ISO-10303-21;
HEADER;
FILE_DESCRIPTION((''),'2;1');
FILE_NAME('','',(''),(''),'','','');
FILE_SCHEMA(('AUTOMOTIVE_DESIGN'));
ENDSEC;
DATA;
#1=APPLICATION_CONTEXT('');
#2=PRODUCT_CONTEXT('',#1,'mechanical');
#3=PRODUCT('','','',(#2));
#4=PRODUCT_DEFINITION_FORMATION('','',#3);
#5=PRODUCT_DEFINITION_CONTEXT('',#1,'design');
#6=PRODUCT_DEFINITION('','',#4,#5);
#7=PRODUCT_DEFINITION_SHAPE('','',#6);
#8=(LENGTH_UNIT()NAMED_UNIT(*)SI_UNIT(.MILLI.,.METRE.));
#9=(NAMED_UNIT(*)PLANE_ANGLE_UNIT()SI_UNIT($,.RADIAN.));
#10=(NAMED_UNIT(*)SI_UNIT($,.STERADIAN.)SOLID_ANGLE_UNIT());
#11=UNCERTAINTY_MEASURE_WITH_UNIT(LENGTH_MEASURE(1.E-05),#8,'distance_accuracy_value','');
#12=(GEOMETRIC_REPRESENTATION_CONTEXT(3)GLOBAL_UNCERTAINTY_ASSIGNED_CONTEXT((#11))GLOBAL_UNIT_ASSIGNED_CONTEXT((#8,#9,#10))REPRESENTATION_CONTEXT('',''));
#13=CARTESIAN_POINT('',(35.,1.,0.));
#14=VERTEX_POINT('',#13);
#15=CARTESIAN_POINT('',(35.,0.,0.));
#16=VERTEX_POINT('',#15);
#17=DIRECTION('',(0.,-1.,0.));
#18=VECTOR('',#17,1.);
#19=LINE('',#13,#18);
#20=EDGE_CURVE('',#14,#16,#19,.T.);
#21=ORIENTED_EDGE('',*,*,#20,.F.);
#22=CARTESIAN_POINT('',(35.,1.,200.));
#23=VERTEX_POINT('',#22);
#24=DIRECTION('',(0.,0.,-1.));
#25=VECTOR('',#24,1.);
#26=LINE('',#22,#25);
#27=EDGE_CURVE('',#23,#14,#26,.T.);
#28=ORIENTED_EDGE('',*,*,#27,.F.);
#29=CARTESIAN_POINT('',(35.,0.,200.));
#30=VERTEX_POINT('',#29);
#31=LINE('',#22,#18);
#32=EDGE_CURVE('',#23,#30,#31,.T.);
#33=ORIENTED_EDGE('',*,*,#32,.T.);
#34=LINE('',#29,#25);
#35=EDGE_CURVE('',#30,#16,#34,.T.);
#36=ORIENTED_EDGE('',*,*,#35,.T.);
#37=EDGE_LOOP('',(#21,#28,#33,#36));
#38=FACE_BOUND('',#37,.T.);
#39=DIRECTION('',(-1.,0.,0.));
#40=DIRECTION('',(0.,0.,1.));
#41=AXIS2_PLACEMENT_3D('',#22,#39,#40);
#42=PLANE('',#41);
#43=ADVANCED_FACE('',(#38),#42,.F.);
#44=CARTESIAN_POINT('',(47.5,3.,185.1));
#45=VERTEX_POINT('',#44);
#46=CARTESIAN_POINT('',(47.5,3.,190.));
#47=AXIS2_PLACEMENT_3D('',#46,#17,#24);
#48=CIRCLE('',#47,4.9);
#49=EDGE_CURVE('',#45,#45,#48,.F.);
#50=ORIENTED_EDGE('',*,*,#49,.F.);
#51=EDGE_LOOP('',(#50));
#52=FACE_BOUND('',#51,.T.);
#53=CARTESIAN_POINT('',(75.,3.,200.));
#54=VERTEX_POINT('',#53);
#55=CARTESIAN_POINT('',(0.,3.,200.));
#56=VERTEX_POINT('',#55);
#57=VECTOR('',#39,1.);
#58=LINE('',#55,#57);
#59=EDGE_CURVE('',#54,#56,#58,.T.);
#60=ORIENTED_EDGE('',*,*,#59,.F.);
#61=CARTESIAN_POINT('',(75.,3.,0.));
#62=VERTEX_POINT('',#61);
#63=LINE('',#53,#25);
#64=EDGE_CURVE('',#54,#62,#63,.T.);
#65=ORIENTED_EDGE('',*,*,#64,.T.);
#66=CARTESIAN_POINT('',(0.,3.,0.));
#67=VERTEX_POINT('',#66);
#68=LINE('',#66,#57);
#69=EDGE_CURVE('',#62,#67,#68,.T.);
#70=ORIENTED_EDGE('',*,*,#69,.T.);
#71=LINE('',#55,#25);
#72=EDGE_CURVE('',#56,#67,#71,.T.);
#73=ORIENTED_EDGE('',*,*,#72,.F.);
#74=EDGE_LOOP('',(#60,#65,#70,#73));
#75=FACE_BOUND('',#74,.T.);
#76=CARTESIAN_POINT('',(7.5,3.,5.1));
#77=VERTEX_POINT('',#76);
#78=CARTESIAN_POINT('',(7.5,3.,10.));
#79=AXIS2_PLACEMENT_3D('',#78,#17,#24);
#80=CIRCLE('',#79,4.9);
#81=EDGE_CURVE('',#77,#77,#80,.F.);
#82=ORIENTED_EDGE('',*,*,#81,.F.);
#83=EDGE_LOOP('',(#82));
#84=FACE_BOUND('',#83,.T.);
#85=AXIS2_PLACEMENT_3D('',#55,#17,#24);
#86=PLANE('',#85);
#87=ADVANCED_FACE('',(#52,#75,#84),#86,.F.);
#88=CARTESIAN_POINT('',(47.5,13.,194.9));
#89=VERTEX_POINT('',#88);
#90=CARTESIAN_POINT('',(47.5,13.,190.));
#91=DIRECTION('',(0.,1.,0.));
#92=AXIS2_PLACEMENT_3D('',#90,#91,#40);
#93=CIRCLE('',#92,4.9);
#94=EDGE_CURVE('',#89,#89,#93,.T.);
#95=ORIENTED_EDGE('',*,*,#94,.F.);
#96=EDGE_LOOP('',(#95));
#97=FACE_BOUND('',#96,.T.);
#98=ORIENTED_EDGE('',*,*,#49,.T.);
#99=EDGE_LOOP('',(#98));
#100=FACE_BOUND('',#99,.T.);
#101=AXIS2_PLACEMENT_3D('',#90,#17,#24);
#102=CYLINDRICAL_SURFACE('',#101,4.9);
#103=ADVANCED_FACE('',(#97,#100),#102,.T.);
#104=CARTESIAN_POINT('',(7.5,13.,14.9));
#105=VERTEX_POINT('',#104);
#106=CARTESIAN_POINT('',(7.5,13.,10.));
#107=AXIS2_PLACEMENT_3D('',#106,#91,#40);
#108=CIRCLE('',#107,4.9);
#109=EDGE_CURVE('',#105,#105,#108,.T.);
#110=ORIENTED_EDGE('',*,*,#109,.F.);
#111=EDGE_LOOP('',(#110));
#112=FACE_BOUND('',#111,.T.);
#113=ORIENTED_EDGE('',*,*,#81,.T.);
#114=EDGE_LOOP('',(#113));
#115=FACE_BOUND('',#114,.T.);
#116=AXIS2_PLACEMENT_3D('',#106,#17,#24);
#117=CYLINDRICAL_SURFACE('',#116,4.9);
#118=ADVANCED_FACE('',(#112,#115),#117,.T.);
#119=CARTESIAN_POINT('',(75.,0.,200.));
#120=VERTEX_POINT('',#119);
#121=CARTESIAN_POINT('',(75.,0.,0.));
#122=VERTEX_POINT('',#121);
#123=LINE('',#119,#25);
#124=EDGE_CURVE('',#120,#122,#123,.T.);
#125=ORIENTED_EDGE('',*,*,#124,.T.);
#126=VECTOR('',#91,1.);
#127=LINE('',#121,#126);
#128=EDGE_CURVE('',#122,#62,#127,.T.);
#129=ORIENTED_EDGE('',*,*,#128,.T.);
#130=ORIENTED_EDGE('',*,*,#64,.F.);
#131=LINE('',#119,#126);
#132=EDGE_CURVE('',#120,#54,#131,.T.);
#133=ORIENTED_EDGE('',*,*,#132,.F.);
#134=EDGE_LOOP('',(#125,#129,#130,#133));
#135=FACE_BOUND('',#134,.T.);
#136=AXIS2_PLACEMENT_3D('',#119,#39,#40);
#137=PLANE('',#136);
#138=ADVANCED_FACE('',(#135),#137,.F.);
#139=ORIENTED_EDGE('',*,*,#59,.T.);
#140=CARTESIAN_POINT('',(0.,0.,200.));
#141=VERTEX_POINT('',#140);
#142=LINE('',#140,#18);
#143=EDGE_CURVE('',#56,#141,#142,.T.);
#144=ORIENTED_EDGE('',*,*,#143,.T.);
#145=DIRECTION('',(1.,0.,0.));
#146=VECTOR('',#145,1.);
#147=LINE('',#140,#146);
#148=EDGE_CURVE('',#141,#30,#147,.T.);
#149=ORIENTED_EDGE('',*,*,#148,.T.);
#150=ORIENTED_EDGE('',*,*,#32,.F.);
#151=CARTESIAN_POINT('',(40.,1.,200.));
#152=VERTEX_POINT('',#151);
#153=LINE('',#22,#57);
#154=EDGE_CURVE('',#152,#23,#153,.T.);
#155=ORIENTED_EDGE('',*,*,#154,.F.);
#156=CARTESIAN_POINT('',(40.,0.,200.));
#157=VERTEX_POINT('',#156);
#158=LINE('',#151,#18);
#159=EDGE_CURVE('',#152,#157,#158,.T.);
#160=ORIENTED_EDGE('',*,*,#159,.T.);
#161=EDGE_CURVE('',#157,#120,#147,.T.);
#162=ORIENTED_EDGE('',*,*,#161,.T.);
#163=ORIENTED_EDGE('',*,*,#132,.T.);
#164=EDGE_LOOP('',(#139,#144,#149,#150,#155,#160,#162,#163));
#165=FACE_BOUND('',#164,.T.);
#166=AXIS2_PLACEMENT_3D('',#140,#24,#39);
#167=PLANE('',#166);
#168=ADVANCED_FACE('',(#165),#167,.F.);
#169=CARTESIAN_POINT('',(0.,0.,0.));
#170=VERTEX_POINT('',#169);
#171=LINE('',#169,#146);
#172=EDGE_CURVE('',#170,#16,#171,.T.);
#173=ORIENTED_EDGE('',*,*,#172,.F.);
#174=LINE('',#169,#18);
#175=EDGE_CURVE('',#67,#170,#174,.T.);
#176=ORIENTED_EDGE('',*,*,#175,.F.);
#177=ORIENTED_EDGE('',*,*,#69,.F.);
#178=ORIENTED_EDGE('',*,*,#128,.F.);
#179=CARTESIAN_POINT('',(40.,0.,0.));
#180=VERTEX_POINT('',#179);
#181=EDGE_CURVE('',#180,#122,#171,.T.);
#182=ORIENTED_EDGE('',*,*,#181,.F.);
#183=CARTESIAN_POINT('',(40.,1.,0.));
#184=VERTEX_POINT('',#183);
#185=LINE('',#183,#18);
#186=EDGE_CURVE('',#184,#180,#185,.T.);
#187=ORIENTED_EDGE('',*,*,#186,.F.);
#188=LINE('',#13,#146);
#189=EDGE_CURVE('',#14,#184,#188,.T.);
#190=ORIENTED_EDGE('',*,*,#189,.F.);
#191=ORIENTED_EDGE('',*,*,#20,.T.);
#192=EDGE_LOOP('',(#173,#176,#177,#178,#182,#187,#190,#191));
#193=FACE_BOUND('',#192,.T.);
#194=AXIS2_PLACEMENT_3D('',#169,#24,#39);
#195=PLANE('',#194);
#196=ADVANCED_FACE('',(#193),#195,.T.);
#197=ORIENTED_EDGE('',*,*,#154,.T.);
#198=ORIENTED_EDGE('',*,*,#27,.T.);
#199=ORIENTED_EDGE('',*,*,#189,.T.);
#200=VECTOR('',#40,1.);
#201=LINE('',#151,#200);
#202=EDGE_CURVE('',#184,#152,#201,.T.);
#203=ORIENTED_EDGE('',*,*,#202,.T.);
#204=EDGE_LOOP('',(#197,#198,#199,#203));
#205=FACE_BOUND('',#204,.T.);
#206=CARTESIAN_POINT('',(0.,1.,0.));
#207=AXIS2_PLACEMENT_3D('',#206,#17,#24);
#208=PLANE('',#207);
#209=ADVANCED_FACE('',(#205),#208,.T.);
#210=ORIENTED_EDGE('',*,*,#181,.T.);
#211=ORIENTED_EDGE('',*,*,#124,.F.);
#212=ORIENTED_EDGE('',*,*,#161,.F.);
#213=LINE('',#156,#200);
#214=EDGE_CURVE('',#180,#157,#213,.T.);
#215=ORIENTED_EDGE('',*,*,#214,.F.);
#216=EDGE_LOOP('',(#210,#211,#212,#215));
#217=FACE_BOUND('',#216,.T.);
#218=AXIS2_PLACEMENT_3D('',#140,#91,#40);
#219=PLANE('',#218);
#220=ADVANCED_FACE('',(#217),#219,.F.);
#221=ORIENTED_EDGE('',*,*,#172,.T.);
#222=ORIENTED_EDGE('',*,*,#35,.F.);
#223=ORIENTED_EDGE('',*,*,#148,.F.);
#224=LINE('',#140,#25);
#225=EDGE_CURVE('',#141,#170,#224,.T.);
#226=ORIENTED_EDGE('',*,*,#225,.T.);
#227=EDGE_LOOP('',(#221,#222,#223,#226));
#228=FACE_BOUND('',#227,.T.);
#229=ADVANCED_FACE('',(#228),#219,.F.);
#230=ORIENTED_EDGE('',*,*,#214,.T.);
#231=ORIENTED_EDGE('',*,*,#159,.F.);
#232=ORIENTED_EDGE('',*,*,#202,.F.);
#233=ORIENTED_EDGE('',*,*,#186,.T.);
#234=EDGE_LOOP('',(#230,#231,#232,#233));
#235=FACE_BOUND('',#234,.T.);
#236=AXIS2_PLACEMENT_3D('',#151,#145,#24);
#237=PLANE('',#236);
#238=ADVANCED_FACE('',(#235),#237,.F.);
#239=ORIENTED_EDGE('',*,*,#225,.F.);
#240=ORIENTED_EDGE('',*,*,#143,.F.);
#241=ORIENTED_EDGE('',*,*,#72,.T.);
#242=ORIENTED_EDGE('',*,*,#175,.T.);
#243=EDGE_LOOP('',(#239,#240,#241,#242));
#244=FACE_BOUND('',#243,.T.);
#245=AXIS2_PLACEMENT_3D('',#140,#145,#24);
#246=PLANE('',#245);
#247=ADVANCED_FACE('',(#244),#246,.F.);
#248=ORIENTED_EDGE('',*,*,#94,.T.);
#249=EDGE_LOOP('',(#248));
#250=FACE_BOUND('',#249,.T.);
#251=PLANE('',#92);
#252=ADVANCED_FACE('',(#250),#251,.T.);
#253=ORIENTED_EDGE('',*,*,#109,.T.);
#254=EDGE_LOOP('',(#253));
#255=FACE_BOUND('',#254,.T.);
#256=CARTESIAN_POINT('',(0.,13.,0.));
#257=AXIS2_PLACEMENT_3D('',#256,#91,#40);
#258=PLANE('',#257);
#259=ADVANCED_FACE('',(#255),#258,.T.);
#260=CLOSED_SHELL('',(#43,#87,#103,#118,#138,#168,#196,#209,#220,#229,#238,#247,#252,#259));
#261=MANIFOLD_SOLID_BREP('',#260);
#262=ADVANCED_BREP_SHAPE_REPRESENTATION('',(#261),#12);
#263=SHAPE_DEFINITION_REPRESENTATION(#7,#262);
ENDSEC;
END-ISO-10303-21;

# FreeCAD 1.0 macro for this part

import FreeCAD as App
import Part
import Sketcher
from FreeCAD import Vector
Q = App.Units.Quantity


def add_polygon(sketch, points):
    """Adds a closed chain of lines whose ends are joined by coincident constraints."""
    first, n = sketch.GeometryCount, len(points)
    for a, b in zip(points, points[1:] + points[:1]):
        sketch.addGeometry(Part.LineSegment(App.Vector(*a, 0), App.Vector(*b, 0)), False)
    for i in range(n):
        sketch.addConstraint(Sketcher.Constraint("Coincident", first + i, 2, first + (i + 1) % n, 1))

doc = App.newDocument("Part")
params = doc.addObject("Spreadsheet::Sheet", "Params")
for row, (alias, value) in enumerate([
    ("sketch1_width", "75 mm"),
    ("sketch1_height", "3 mm"),
    ("pad1_length", "200 mm"),
    ("sketch2_diameter", "9.8 mm"),
    ("pad2_length", "10 mm"),
    ("sketch3_width", "5 mm"),
    ("sketch3_height", "200 mm"),
    ("pocket1_length", "1 mm"),
], start=1):
    params.set(f"A{row}", alias)
    params.set(f"B{row}", "=" + value)
    params.setAlias(f"B{row}", alias)

body = doc.addObject("PartDesign::Body", "Body")

# Sketch on XY plane
sketch1 = doc.addObject("Sketcher::SketchObject", "Sketch")
body.addObject(sketch1)
sketch1.AttachmentSupport = (doc.XY_Plane, [""])
sketch1.MapMode = "FlatFace"
add_polygon(sketch1, [(0, 3), (0, 0), (75, 0), (75, 3)])  # lines 0-3
sketch1.addConstraint([
    Sketcher.Constraint("Vertical", 0),
    Sketcher.Constraint("Horizontal", 1),
    Sketcher.Constraint("Vertical", 2),
    Sketcher.Constraint("Horizontal", 3),
    Sketcher.Constraint("Coincident", 0, 2, -1, 1),
    Sketcher.Constraint("DistanceX", 1, 1, 1, 2, Q("75 mm")),
    Sketcher.Constraint("DistanceY", 0, 2, 0, 1, Q("3 mm")),
])
sketch1.setExpression("Constraints[9]", "Params.sketch1_width")
sketch1.setExpression("Constraints[10]", "Params.sketch1_height")
pad1 = doc.addObject("PartDesign::Pad", "Pad")
body.addObject(pad1)
pad1.Profile = sketch1
pad1.setExpression("Length", "Params.pad1_length")

# Sketch on XZ plane
sketch2 = doc.addObject("Sketcher::SketchObject", "Sketch001")
body.addObject(sketch2)
sketch2.AttachmentSupport = (doc.XZ_Plane, [""])
sketch2.MapMode = "FlatFace"
sketch2.AttachmentOffset = App.Placement(Vector(0, 0, -3), App.Rotation())
sketch2.addGeometry([
    Part.Circle(Vector(7.5, 10, 0), Vector(0, 0, 1), 4.9),
    Part.Circle(Vector(47.5, 190, 0), Vector(0, 0, 1), 4.9),
], False)
sketch2.addConstraint([
    Sketcher.Constraint("Equal", 0, 1),
    Sketcher.Constraint("Diameter", 0, Q("9.8 mm")),
    Sketcher.Constraint("DistanceY", -1, 1, 0, 3, Q("10 mm")),
    Sketcher.Constraint("DistanceY", -1, 1, 1, 3, Q("190 mm")),
    Sketcher.Constraint("DistanceX", 0, 3, 1, 3, Q("40 mm")),
    Sketcher.Constraint("DistanceX", -1, 1, 0, 3, Q("7.5 mm")),
])
sketch2.setExpression("Constraints[1]", "Params.sketch2_diameter")
pad2 = doc.addObject("PartDesign::Pad", "Pad001")
body.addObject(pad2)
pad2.Profile = sketch2
pad2.setExpression("Length", "Params.pad2_length")
pad2.Reversed = True

# Sketch on XZ plane
sketch3 = doc.addObject("Sketcher::SketchObject", "Sketch002")
body.addObject(sketch3)
sketch3.AttachmentSupport = (doc.XZ_Plane, [""])
sketch3.MapMode = "FlatFace"
add_polygon(sketch3, [(35, 200), (35, 0), (40, 0), (40, 200)])  # lines 0-3
sketch3.addConstraint([
    Sketcher.Constraint("Vertical", 0),
    Sketcher.Constraint("Horizontal", 1),
    Sketcher.Constraint("Vertical", 2),
    Sketcher.Constraint("Horizontal", 3),
    Sketcher.Constraint("PointOnObject", 0, 2, -1),
    Sketcher.Constraint("DistanceX", 1, 1, 1, 2, Q("5 mm")),
    Sketcher.Constraint("DistanceY", 0, 2, 0, 1, Q("200 mm")),
    Sketcher.Constraint("DistanceX", -1, 1, 0, 2, Q("35 mm")),
])
sketch3.setExpression("Constraints[9]", "Params.sketch3_width")
sketch3.setExpression("Constraints[10]", "Params.sketch3_height")
pocket1 = doc.addObject("PartDesign::Pocket", "Pocket")
body.addObject(pocket1)
pocket1.Profile = sketch3
pocket1.setExpression("Length", "Params.pocket1_length")

doc.recompute()
